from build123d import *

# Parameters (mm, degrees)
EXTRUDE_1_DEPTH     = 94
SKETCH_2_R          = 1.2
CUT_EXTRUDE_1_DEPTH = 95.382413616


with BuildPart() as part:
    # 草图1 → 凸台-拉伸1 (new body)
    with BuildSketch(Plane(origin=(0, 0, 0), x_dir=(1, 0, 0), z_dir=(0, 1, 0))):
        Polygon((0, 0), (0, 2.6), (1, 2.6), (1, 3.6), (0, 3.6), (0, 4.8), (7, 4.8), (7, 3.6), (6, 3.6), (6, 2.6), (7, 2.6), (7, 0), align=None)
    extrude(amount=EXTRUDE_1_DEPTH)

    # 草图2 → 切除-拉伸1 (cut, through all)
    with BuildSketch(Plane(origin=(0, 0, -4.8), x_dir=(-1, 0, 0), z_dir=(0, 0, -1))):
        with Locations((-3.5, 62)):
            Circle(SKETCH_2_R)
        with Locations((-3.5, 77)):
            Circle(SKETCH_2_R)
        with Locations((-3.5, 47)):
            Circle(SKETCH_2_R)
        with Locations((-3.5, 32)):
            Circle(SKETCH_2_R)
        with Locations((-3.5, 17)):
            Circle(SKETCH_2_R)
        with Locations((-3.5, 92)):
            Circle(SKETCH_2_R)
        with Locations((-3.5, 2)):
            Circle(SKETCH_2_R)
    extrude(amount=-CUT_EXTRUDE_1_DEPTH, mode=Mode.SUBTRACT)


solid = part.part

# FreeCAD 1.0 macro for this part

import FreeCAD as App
import Part
import Sketcher

V = App.Vector

doc = App.newDocument("Part")
params = doc.addObject("Spreadsheet::Sheet", "Params")
for row, (alias, value) in enumerate([
    ("sketch1_width", "7 mm"),
    ("sketch1_width2", "1 mm"),
    ("sketch1_height", "2.6 mm"),
    ("sketch1_height2", "1.2 mm"),
    ("pad1_length", "94 mm"),
    ("sketch2_diameter", "2.4 mm"),
], start=1):
    params.set(f"A{row}", alias)
    params.set(f"B{row}", "=" + value)
    params.setAlias(f"B{row}", alias)

body = doc.addObject("PartDesign::Body", "Body")

sketch1 = body.newObject("Sketcher::SketchObject", "Sketch")
sketch1.AttachmentSupport = (doc.getObject("XZ_Plane"), [""])
sketch1.MapMode = "FlatFace"
sketch1.addGeometry([
    Part.LineSegment(V(0, -2.6, 0), V(0, 0, 0)),
    Part.LineSegment(V(0, 0, 0), V(7, 0, 0)),
    Part.LineSegment(V(7, 0, 0), V(7, -2.6, 0)),
    Part.LineSegment(V(7, -2.6, 0), V(6, -2.6, 0)),
    Part.LineSegment(V(6, -2.6, 0), V(6, -3.6, 0)),
    Part.LineSegment(V(6, -3.6, 0), V(7, -3.6, 0)),
    Part.LineSegment(V(7, -3.6, 0), V(7, -4.8, 0)),
    Part.LineSegment(V(7, -4.8, 0), V(0, -4.8, 0)),
    Part.LineSegment(V(0, -4.8, 0), V(0, -3.6, 0)),
    Part.LineSegment(V(0, -3.6, 0), V(1, -3.6, 0)),
    Part.LineSegment(V(1, -3.6, 0), V(1, -2.6, 0)),
    Part.LineSegment(V(1, -2.6, 0), V(0, -2.6, 0)),
], False)
sketch1.addConstraint([
    Sketcher.Constraint("Coincident", 0, 2, 1, 1),
    Sketcher.Constraint("Coincident", 1, 2, 2, 1),
    Sketcher.Constraint("Coincident", 2, 2, 3, 1),
    Sketcher.Constraint("Coincident", 3, 2, 4, 1),
    Sketcher.Constraint("Coincident", 4, 2, 5, 1),
    Sketcher.Constraint("Coincident", 5, 2, 6, 1),
    Sketcher.Constraint("Coincident", 6, 2, 7, 1),
    Sketcher.Constraint("Coincident", 7, 2, 8, 1),
    Sketcher.Constraint("Coincident", 8, 2, 9, 1),
    Sketcher.Constraint("Coincident", 9, 2, 10, 1),
    Sketcher.Constraint("Coincident", 10, 2, 11, 1),
    Sketcher.Constraint("Coincident", 11, 2, 0, 1),
    Sketcher.Constraint("Vertical", 0),
    Sketcher.Constraint("Horizontal", 1),
    Sketcher.Constraint("Vertical", 2),
    Sketcher.Constraint("Horizontal", 3),
    Sketcher.Constraint("Vertical", 4),
    Sketcher.Constraint("Horizontal", 5),
    Sketcher.Constraint("Vertical", 6),
    Sketcher.Constraint("Horizontal", 7),
    Sketcher.Constraint("Vertical", 8),
    Sketcher.Constraint("Horizontal", 9),
    Sketcher.Constraint("Vertical", 10),
    Sketcher.Constraint("Horizontal", 11),
    Sketcher.Constraint("Coincident", 0, 2, -1, 1),
    Sketcher.Constraint("PointOnObject", 7, 2, -2),
    Sketcher.Constraint("Horizontal", 5, 2, 8, 2),
    Sketcher.Constraint("Horizontal", 3, 2, 10, 2),
    Sketcher.Constraint("Vertical", 2, 2, 5, 2),
    Sketcher.Constraint("Equal", 5, 9),
    Sketcher.Constraint("Equal", 11, 4),
    Sketcher.Constraint("DistanceX", 1, 1, 1, 2, 7.0),
    Sketcher.Constraint("DistanceX", 3, 2, 3, 1, 1.0),
    Sketcher.Constraint("DistanceY", 0, 1, 0, 2, 2.6),
    Sketcher.Constraint("DistanceY", 6, 2, 6, 1, 1.2),
])
sketch1.setExpression("Constraints[31]", "Params.sketch1_width")
sketch1.setExpression("Constraints[32]", "Params.sketch1_width2")
sketch1.setExpression("Constraints[33]", "Params.sketch1_height")
sketch1.setExpression("Constraints[34]", "Params.sketch1_height2")
pad1 = body.newObject("PartDesign::Pad", "Pad")
pad1.Profile = sketch1
pad1.setExpression("Length", "Params.pad1_length")
pad1.Reversed = True

sketch2 = body.newObject("Sketcher::SketchObject", "Sketch001")
sketch2.AttachmentSupport = (doc.getObject("XY_Plane"), [""])
sketch2.MapMode = "FlatFace"
sketch2.AttachmentOffset = App.Placement(V(0, 0, -4.8), App.Rotation())
sketch2.addGeometry([
    Part.Circle(V(3.5, 62, 0), V(0, 0, 1), 1.2),
    Part.Circle(V(3.5, 77, 0), V(0, 0, 1), 1.2),
    Part.Circle(V(3.5, 47, 0), V(0, 0, 1), 1.2),
    Part.Circle(V(3.5, 32, 0), V(0, 0, 1), 1.2),
    Part.Circle(V(3.5, 17, 0), V(0, 0, 1), 1.2),
    Part.Circle(V(3.5, 92, 0), V(0, 0, 1), 1.2),
    Part.Circle(V(3.5, 2, 0), V(0, 0, 1), 1.2),
], False)
sketch2.addConstraint([
    Sketcher.Constraint("Equal", 0, 1),
    Sketcher.Constraint("Equal", 1, 2),
    Sketcher.Constraint("Equal", 2, 3),
    Sketcher.Constraint("Equal", 3, 4),
    Sketcher.Constraint("Equal", 4, 5),
    Sketcher.Constraint("Equal", 5, 6),
    Sketcher.Constraint("Vertical", 0, 3, 1, 3),
    Sketcher.Constraint("Vertical", 1, 3, 2, 3),
    Sketcher.Constraint("Vertical", 2, 3, 3, 3),
    Sketcher.Constraint("Vertical", 3, 3, 4, 3),
    Sketcher.Constraint("Vertical", 4, 3, 5, 3),
    Sketcher.Constraint("Vertical", 5, 3, 6, 3),
    Sketcher.Constraint("Diameter", 0, 2.4),
    Sketcher.Constraint("DistanceY", -1, 1, 0, 3, 62.0),
    Sketcher.Constraint("DistanceY", -1, 1, 1, 3, 77.0),
    Sketcher.Constraint("DistanceY", -1, 1, 2, 3, 47.0),
    Sketcher.Constraint("DistanceY", -1, 1, 3, 3, 32.0),
    Sketcher.Constraint("DistanceY", -1, 1, 4, 3, 17.0),
    Sketcher.Constraint("DistanceY", -1, 1, 5, 3, 92.0),
    Sketcher.Constraint("DistanceY", -1, 1, 6, 3, 2.0),
    Sketcher.Constraint("DistanceX", -1, 1, 0, 3, 3.5),
])
sketch2.setExpression("Constraints[12]", "Params.sketch2_diameter")
pocket1 = body.newObject("PartDesign::Pocket", "Pocket")
pocket1.Profile = sketch2
pocket1.Type = "ThroughAll"
pocket1.Reversed = True

doc.recompute()
